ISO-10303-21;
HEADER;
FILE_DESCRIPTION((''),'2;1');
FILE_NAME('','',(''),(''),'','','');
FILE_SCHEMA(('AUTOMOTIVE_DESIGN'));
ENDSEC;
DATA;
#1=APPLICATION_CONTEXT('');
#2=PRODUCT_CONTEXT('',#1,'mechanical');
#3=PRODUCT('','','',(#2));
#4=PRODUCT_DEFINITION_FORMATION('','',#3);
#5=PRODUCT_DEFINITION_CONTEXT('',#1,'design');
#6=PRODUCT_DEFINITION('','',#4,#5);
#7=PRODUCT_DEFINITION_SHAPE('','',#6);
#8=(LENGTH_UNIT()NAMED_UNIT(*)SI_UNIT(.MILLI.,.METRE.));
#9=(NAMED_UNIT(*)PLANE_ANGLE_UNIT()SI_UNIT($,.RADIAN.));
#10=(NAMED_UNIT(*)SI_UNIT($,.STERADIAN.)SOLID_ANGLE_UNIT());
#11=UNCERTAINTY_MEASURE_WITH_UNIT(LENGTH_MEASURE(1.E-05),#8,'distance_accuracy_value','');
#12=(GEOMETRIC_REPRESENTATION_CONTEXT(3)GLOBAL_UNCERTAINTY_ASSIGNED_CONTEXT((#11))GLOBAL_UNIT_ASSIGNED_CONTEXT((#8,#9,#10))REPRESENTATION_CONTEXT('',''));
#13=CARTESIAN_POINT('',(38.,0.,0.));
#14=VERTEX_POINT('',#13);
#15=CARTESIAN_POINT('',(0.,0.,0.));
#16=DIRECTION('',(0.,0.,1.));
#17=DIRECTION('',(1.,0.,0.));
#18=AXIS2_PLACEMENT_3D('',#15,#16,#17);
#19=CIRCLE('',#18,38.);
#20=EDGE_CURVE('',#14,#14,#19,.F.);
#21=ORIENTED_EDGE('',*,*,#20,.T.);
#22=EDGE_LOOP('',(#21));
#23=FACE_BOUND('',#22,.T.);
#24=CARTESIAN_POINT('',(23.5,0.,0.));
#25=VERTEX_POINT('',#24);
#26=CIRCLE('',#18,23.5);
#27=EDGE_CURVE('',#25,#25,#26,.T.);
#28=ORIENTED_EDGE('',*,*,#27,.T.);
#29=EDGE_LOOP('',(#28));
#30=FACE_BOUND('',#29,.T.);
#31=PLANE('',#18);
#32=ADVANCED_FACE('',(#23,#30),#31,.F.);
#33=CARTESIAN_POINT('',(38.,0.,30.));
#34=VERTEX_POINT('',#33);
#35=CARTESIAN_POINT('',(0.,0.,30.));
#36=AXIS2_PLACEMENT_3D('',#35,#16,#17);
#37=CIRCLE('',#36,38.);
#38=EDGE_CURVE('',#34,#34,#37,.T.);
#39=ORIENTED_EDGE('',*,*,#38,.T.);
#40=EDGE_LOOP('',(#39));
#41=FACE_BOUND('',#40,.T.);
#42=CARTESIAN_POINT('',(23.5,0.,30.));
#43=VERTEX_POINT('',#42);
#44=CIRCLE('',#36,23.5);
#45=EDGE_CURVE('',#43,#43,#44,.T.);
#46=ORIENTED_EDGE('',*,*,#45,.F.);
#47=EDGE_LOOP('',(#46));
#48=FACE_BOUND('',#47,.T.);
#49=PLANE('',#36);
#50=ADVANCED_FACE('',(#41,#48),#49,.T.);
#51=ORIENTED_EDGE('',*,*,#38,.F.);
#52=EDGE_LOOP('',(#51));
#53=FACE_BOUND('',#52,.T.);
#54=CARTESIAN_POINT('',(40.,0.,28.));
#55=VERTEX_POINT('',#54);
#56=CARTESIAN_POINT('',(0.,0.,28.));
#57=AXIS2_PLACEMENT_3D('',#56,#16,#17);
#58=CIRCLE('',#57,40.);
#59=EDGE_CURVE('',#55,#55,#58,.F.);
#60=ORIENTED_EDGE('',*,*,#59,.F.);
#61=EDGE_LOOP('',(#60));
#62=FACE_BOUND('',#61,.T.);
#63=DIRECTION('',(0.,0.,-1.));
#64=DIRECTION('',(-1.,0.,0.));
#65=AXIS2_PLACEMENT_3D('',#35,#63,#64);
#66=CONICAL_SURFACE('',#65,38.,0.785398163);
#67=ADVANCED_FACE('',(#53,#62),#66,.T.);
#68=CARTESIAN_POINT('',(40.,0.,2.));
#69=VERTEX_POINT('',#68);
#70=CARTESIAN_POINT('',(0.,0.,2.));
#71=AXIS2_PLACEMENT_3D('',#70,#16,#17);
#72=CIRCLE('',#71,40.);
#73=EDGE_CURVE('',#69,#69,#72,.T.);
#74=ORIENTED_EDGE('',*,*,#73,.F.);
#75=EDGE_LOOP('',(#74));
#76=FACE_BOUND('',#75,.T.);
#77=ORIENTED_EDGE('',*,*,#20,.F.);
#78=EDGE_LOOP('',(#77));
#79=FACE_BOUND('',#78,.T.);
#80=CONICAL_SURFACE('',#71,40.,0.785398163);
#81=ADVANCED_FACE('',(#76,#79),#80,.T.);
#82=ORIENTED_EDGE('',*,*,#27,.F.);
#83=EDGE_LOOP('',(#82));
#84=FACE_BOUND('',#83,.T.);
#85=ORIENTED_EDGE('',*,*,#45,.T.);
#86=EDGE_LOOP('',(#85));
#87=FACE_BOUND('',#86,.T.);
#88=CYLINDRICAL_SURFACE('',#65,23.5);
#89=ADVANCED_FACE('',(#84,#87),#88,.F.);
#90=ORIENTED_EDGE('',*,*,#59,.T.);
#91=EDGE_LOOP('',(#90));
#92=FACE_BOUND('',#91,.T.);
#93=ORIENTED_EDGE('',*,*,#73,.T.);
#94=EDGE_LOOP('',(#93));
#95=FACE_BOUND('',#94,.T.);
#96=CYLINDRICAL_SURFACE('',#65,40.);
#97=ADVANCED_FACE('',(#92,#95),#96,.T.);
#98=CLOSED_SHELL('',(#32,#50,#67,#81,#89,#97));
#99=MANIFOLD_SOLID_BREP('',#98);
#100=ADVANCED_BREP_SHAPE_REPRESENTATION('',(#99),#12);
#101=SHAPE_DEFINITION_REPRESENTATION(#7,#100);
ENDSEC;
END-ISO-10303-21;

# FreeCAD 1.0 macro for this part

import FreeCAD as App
import Part
import Sketcher
from FreeCAD import Vector


def edges_at(feature, points):
    """Names of the edges that pass closest to the given points."""
    edges = feature.Shape.Edges
    near = lambda p: min(range(len(edges)), key=lambda i: edges[i].distToShape(Part.Vertex(*p))[0])
    return sorted({f"Edge{near(p) + 1}" for p in points})

doc = App.newDocument("Part")
body = doc.addObject("PartDesign::Body", "Body")

# Sketch on XY plane
sketch1 = body.newObject("Sketcher::SketchObject", "Sketch")
sketch1.AttachmentSupport = (doc.getObject("XY_Plane"), [""])
sketch1.MapMode = "FlatFace"
sketch1.addGeometry([
    Part.Circle(Vector(0, 0, 0), Vector(0, 0, 1), 40),
    Part.Circle(Vector(0, 0, 0), Vector(0, 0, 1), 24),
], False)
sketch1.addConstraint([
    Sketcher.Constraint("Coincident", 0, 3, -1, 1),
    Sketcher.Constraint("Coincident", 1, 3, -1, 1),
    Sketcher.Constraint("Diameter", 0, 80.0),
    Sketcher.Constraint("Diameter", 1, 47.0),
])
pad1 = body.newObject("PartDesign::Pad", "Pad")
pad1.Profile = sketch1
pad1.Length = 30
doc.recompute()

chamfer = body.newObject("PartDesign::Chamfer", "Chamfer")
chamfer.Base = (pad1, edges_at(pad1, [(-40, 0, 0), (-40, 0, 30)]))
chamfer.Size = 2

doc.recompute()
